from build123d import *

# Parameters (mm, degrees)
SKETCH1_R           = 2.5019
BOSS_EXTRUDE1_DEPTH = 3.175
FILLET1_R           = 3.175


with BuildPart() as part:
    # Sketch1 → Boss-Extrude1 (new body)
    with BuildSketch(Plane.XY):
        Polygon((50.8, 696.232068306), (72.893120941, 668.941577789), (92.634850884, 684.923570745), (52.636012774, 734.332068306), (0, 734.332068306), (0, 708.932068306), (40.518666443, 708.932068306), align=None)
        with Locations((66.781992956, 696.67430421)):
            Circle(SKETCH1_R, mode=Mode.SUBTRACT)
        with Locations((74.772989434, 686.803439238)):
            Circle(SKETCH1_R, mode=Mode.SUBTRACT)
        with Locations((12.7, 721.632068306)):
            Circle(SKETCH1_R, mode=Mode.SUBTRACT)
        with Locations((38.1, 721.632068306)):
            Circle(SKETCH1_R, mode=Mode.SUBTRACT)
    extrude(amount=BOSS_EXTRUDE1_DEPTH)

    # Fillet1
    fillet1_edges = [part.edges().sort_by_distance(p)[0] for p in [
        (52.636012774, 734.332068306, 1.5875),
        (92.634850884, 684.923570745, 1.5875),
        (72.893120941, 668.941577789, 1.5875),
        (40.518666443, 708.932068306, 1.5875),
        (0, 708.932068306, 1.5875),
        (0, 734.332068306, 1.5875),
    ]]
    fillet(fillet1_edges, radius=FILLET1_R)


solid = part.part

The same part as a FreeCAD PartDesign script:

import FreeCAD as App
import Part
import Sketcher
from FreeCAD import Vector
Q = App.Units.Quantity


def edges_at(feature, points):
    """Names of the edges that pass closest to the given points."""
    edges = feature.Shape.Edges
    near = lambda p: min(range(len(edges)), key=lambda i: edges[i].distToShape(Part.Vertex(*p))[0])
    return sorted({f"Edge{near(p) + 1}" for p in points})

doc = App.newDocument("Part")
body = doc.addObject("PartDesign::Body", "Body")

# Sketch on XY plane
sketch1 = body.newObject("Sketcher::SketchObject", "Sketch")
sketch1.AttachmentSupport = (doc.getObject("XY_Plane"), [""])
sketch1.MapMode = "FlatFace"
sketch1.addGeometry([
    Part.LineSegment(Vector(50.8, 696.232068, 0), Vector(72.893121, 668.941578, 0)),  # 0
    Part.LineSegment(Vector(72.893121, 668.941578, 0), Vector(92.634851, 684.923571, 0)),  # 1
    Part.LineSegment(Vector(92.634851, 684.923571, 0), Vector(52.636013, 734.332068, 0)),  # 2
    Part.LineSegment(Vector(52.636013, 734.332068, 0), Vector(0, 734.332068, 0)),  # 3
    Part.LineSegment(Vector(0, 734.332068, 0), Vector(0, 708.932068, 0)),  # 4
    Part.LineSegment(Vector(0, 708.932068, 0), Vector(40.518666, 708.932068, 0)),  # 5
    Part.LineSegment(Vector(40.518666, 708.932068, 0), Vector(50.8, 696.232068, 0)),  # 6
    Part.Circle(Vector(74.772989, 686.803439, 0), Vector(0, 0, 1), 2.5019),  # 7
    Part.Circle(Vector(66.781993, 696.674304, 0), Vector(0, 0, 1), 2.5019),  # 8
    Part.Circle(Vector(12.7, 721.632068, 0), Vector(0, 0, 1), 2.5019),  # 9
    Part.Circle(Vector(38.1, 721.632068, 0), Vector(0, 0, 1), 2.5019),  # 10
], False)
sketch1.addConstraint([
    Sketcher.Constraint("Coincident", 0, 2, 1, 1),
    Sketcher.Constraint("Coincident", 1, 2, 2, 1),
    Sketcher.Constraint("Coincident", 2, 2, 3, 1),
    Sketcher.Constraint("Coincident", 3, 2, 4, 1),
    Sketcher.Constraint("Coincident", 4, 2, 5, 1),
    Sketcher.Constraint("Coincident", 5, 2, 6, 1),
    Sketcher.Constraint("Coincident", 6, 2, 0, 1),
    Sketcher.Constraint("Horizontal", 3),
    Sketcher.Constraint("Vertical", 4),
    Sketcher.Constraint("Horizontal", 5),
    Sketcher.Constraint("Equal", 7, 8),
    Sketcher.Constraint("Equal", 8, 9),
    Sketcher.Constraint("Equal", 9, 10),
    Sketcher.Constraint("PointOnObject", 3, 2, -2),
    Sketcher.Constraint("Perpendicular", 0, 1),
    Sketcher.Constraint("Perpendicular", 1, 2),
    Sketcher.Constraint("Parallel", 2, 6),
    Sketcher.Constraint("Horizontal", 9, 3, 10, 3),
    Sketcher.Constraint("DistanceY", 4, 2, 4, 1, Q("1 in")),
    Sketcher.Constraint("Distance", 1, Q("1 in")),
    Sketcher.Constraint("Diameter", 7, Q("0.197 in")),
    Sketcher.Constraint("DistanceX", -1, 1, 6, 2, Q("2 in")),
    Sketcher.Constraint("DistanceX", 9, 3, 10, 3, Q("1 in")),
    Sketcher.Constraint("DistanceY", 6, 2, 10, 3, Q("1 in")),
    Sketcher.Constraint("DistanceX", -1, 1, 9, 3, Q("0.5 in")),
    Sketcher.Constraint("DistanceY", 10, 3, 2, 2, Q("0.5 in")),
    Sketcher.Constraint("Distance", 2, Q("63.569699 mm")),
    Sketcher.Constraint("DistanceX", 3, 2, 3, 1, Q("52.636013 mm")),
    Sketcher.Constraint("DistanceX", -1, 1, 7, 3, Q("74.772989 mm")),
    Sketcher.Constraint("DistanceY", -1, 1, 7, 3, Q("686.803439 mm")),
    Sketcher.Constraint("DistanceY", -1, 1, 9, 3, Q("721.632068 mm")),
    Sketcher.Constraint("DistanceX", 2, 2, 8, 3, Q("14.14598 mm")),
    Sketcher.Constraint("DistanceY", -1, 1, 8, 3, Q("696.674304 mm")),
])
pad1 = body.newObject("PartDesign::Pad", "Pad")
pad1.Profile = sketch1
pad1.Length = Q("0.125 in")
doc.recompute()

fillet = body.newObject("PartDesign::Fillet", "Fillet")
fillet.Base = (pad1, edges_at(pad1, [
    (52.636, 734.332, 1.587),
    (92.635, 684.924, 1.587),
    (72.893, 668.942, 1.587),
    (40.519, 708.932, 1.587),
    (0, 708.932, 1.587),
    (0, 734.332, 1.587),
]))
fillet.Radius = Q("0.125 in")

doc.recompute()
